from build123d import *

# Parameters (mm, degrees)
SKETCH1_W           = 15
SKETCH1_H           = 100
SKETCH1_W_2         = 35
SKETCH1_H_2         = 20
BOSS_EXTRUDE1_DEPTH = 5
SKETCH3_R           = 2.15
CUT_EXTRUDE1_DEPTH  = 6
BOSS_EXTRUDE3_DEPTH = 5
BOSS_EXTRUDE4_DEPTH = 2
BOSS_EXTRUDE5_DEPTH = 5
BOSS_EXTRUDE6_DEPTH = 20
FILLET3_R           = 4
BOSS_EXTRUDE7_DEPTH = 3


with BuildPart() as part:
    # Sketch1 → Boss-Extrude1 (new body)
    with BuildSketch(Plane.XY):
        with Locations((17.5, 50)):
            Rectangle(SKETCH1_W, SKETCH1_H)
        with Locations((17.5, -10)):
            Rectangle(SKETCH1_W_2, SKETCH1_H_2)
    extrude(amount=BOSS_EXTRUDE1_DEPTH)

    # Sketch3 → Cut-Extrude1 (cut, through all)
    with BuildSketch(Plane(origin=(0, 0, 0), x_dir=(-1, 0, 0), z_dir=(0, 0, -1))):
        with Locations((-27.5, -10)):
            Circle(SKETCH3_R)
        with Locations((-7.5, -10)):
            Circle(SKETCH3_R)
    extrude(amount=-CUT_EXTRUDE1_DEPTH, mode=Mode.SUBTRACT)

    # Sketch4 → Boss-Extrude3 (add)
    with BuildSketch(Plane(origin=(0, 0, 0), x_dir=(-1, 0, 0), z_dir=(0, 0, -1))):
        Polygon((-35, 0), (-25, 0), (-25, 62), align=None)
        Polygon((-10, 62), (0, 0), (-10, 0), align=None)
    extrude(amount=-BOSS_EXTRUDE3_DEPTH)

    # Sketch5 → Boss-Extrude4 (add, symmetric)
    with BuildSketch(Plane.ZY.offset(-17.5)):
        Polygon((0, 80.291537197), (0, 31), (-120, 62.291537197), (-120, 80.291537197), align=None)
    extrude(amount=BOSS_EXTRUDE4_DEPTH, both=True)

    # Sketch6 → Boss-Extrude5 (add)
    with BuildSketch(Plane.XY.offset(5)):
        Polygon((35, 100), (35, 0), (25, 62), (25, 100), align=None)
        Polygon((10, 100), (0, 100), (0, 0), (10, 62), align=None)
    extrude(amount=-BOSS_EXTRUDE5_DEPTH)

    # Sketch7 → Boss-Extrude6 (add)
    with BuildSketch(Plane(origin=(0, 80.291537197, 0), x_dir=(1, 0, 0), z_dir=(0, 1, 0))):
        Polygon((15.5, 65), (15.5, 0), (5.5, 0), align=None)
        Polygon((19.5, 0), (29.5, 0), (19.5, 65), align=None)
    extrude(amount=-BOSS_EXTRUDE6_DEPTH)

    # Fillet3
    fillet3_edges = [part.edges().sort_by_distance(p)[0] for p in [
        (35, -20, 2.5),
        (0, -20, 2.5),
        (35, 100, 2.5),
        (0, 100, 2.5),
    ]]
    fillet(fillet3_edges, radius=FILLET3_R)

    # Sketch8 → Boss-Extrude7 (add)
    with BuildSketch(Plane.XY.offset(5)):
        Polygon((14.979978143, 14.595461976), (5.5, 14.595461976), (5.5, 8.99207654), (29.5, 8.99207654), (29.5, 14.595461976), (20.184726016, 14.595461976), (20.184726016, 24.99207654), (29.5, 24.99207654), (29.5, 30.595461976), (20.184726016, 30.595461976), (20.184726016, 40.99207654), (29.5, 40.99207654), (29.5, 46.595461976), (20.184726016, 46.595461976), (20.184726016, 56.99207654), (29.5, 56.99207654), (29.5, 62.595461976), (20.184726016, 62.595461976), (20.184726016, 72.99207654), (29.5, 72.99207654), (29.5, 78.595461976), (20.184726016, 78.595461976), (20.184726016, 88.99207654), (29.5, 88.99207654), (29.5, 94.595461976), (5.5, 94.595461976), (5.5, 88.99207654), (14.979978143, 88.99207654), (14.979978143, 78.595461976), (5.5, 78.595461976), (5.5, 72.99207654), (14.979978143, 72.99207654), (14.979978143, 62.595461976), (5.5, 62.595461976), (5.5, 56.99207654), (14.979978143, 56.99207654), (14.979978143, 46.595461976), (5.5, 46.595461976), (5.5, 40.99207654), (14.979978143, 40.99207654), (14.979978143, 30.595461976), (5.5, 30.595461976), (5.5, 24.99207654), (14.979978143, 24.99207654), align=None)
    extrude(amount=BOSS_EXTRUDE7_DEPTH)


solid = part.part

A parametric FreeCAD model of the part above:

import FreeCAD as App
import Part
import Sketcher
Q = App.Units.Quantity


def edges_at(feature, points):
    """Names of the edges that pass closest to the given points."""
    edges = feature.Shape.Edges
    near = lambda p: min(range(len(edges)), key=lambda i: edges[i].distToShape(Part.Vertex(*p))[0])
    return sorted({f"Edge{near(p) + 1}" for p in points})

doc = App.newDocument("Part")
body = doc.addObject("PartDesign::Body", "Body")

sketch1 = body.newObject("Sketcher::SketchObject", "Sketch")
sketch1.AttachmentSupport = (doc.getObject("XY_Plane"), [""])
sketch1.MapMode = "FlatFace"
sketch1.addGeometry([
    Part.LineSegment(App.Vector(10, 100, 0), App.Vector(10, 0, 0)),
    Part.LineSegment(App.Vector(10, 0, 0), App.Vector(0, 0, 0)),
    Part.LineSegment(App.Vector(0, 0, 0), App.Vector(0, -20, 0)),
    Part.LineSegment(App.Vector(0, -20, 0), App.Vector(35, -20, 0)),
    Part.LineSegment(App.Vector(35, -20, 0), App.Vector(35, 0, 0)),
    Part.LineSegment(App.Vector(35, 0, 0), App.Vector(25, 0, 0)),
    Part.LineSegment(App.Vector(25, 0, 0), App.Vector(25, 100, 0)),
    Part.LineSegment(App.Vector(25, 100, 0), App.Vector(10, 100, 0)),
], False)
sketch1.addConstraint([
    Sketcher.Constraint("Coincident", 0, 2, 1, 1),
    Sketcher.Constraint("Coincident", 1, 2, 2, 1),
    Sketcher.Constraint("Coincident", 2, 2, 3, 1),
    Sketcher.Constraint("Coincident", 3, 2, 4, 1),
    Sketcher.Constraint("Coincident", 4, 2, 5, 1),
    Sketcher.Constraint("Coincident", 5, 2, 6, 1),
    Sketcher.Constraint("Coincident", 6, 2, 7, 1),
    Sketcher.Constraint("Coincident", 7, 2, 0, 1),
    Sketcher.Constraint("Vertical", 0),
    Sketcher.Constraint("Horizontal", 1),
    Sketcher.Constraint("Vertical", 2),
    Sketcher.Constraint("Horizontal", 3),
    Sketcher.Constraint("Vertical", 4),
    Sketcher.Constraint("Horizontal", 5),
    Sketcher.Constraint("Vertical", 6),
    Sketcher.Constraint("Horizontal", 7),
    Sketcher.Constraint("Coincident", 1, 2, -1, 1),
    Sketcher.Constraint("PointOnObject", 4, 2, -1),
    Sketcher.Constraint("Equal", 1, 5),
    Sketcher.Constraint("DistanceX", 1, 2, 1, 1, Q("10 mm")),
    Sketcher.Constraint("DistanceX", 3, 1, 3, 2, Q("35 mm")),
    Sketcher.Constraint("DistanceY", 0, 2, 0, 1, Q("100 mm")),
    Sketcher.Constraint("DistanceY", 2, 2, 2, 1, Q("20 mm")),
])
pad1 = body.newObject("PartDesign::Pad", "Pad")
pad1.Profile = sketch1
pad1.Length = 5

sketch2 = body.newObject("Sketcher::SketchObject", "Sketch001")
sketch2.AttachmentSupport = (doc.getObject("XY_Plane"), [""])
sketch2.MapMode = "FlatFace"
sketch2.addGeometry([
    Part.Circle(App.Vector(27.5, -10, 0), App.Vector(0, 0, 1), 2.1),
    Part.Circle(App.Vector(7.5, -10, 0), App.Vector(0, 0, 1), 2.1),
], False)
sketch2.addConstraint([
    Sketcher.Constraint("Equal", 0, 1),
    Sketcher.Constraint("Horizontal", 0, 3, 1, 3),
    Sketcher.Constraint("Diameter", 0, Q("4.3 mm")),
    Sketcher.Constraint("DistanceY", 0, 3, -1, 1, Q("10 mm")),
    Sketcher.Constraint("DistanceX", 1, 3, 0, 3, Q("20 mm")),
    Sketcher.Constraint("DistanceX", -1, 1, 0, 3, Q("27.5 mm")),
])
pocket1 = body.newObject("PartDesign::Pocket", "Pocket")
pocket1.Profile = sketch2
pocket1.Type = "ThroughAll"
pocket1.Reversed = True

sketch3 = body.newObject("Sketcher::SketchObject", "Sketch002")
sketch3.AttachmentSupport = (doc.getObject("XY_Plane"), [""])
sketch3.MapMode = "FlatFace"
sketch3.addGeometry([
    Part.LineSegment(App.Vector(35, 0, 0), App.Vector(25, 0, 0)),
    Part.LineSegment(App.Vector(25, 0, 0), App.Vector(25, 62, 0)),
    Part.LineSegment(App.Vector(25, 62, 0), App.Vector(35, 0, 0)),
    Part.LineSegment(App.Vector(0, 0, 0), App.Vector(10, 62, 0)),
    Part.LineSegment(App.Vector(10, 62, 0), App.Vector(10, 0, 0)),
    Part.LineSegment(App.Vector(10, 0, 0), App.Vector(0, 0, 0)),
], False)
sketch3.addConstraint([
    Sketcher.Constraint("Coincident", 0, 2, 1, 1),
    Sketcher.Constraint("Coincident", 1, 2, 2, 1),
    Sketcher.Constraint("Coincident", 2, 2, 0, 1),
    Sketcher.Constraint("Coincident", 3, 2, 4, 1),
    Sketcher.Constraint("Coincident", 4, 2, 5, 1),
    Sketcher.Constraint("Coincident", 5, 2, 3, 1),
    Sketcher.Constraint("Horizontal", 0),
    Sketcher.Constraint("Vertical", 1),
    Sketcher.Constraint("Vertical", 4),
    Sketcher.Constraint("Horizontal", 5),
    Sketcher.Constraint("Coincident", 5, 2, -1, 1),
    Sketcher.Constraint("PointOnObject", 0, 2, -1),
    Sketcher.Constraint("Horizontal", 1, 2, 3, 2),
    Sketcher.Constraint("Equal", 0, 5),
    Sketcher.Constraint("DistanceX", 0, 2, 0, 1, Q("10 mm")),
    Sketcher.Constraint("DistanceY", 1, 1, 1, 2, Q("62 mm")),
    Sketcher.Constraint("DistanceX", -1, 1, 0, 2, Q("25 mm")),
])
pad2 = body.newObject("PartDesign::Pad", "Pad001")
pad2.Profile = sketch3
pad2.Length = 5

sketch4 = body.newObject("Sketcher::SketchObject", "Sketch003")
sketch4.AttachmentSupport = (doc.getObject("YZ_Plane"), [""])
sketch4.MapMode = "FlatFace"
sketch4.AttachmentOffset = App.Placement(App.Vector(0, 0, 17.5), App.Rotation())
sketch4.addGeometry([
    Part.LineSegment(App.Vector(31, 0, 0), App.Vector(80, 0, 0)),
    Part.LineSegment(App.Vector(80, 0, 0), App.Vector(80, -120, 0)),
    Part.LineSegment(App.Vector(80, -120, 0), App.Vector(62, -120, 0)),
    Part.LineSegment(App.Vector(62, -120, 0), App.Vector(31, 0, 0)),
], False)
sketch4.addConstraint([
    Sketcher.Constraint("Coincident", 0, 2, 1, 1),
    Sketcher.Constraint("Coincident", 1, 2, 2, 1),
    Sketcher.Constraint("Coincident", 2, 2, 3, 1),
    Sketcher.Constraint("Coincident", 3, 2, 0, 1),
    Sketcher.Constraint("Horizontal", 0),
    Sketcher.Constraint("Vertical", 1),
    Sketcher.Constraint("Horizontal", 2),
    Sketcher.Constraint("PointOnObject", 0, 2, -1),
    Sketcher.Constraint("DistanceX", 2, 2, 2, 1, Q("18 mm")),
    Sketcher.Constraint("DistanceY", 1, 2, 1, 1, Q("120 mm")),
    Sketcher.Constraint("DistanceX", -1, 1, 3, 2, Q("31 mm")),
    Sketcher.Constraint("DistanceX", 0, 1, 0, 2, Q("49.291537 mm")),
])
pad3 = body.newObject("PartDesign::Pad", "Pad002")
pad3.Profile = sketch4
pad3.Length = 4
pad3.Midplane = True

sketch5 = body.newObject("Sketcher::SketchObject", "Sketch004")
sketch5.AttachmentSupport = (doc.getObject("XY_Plane"), [""])
sketch5.MapMode = "FlatFace"
sketch5.AttachmentOffset = App.Placement(App.Vector(0, 0, 5), App.Rotation())
sketch5.addGeometry([
    Part.LineSegment(App.Vector(35, 0, 0), App.Vector(35, 100, 0)),
    Part.LineSegment(App.Vector(35, 100, 0), App.Vector(25, 100, 0)),
    Part.LineSegment(App.Vector(25, 100, 0), App.Vector(25, 62, 0)),
    Part.LineSegment(App.Vector(25, 62, 0), App.Vector(35, 0, 0)),
    Part.LineSegment(App.Vector(10, 100, 0), App.Vector(0, 100, 0)),
    Part.LineSegment(App.Vector(0, 100, 0), App.Vector(0, 0, 0)),
    Part.LineSegment(App.Vector(0, 0, 0), App.Vector(10, 62, 0)),
    Part.LineSegment(App.Vector(10, 62, 0), App.Vector(10, 100, 0)),
], False)
sketch5.addConstraint([
    Sketcher.Constraint("Coincident", 0, 2, 1, 1),
    Sketcher.Constraint("Coincident", 1, 2, 2, 1),
    Sketcher.Constraint("Coincident", 2, 2, 3, 1),
    Sketcher.Constraint("Coincident", 3, 2, 0, 1),
    Sketcher.Constraint("Coincident", 4, 2, 5, 1),
    Sketcher.Constraint("Coincident", 5, 2, 6, 1),
    Sketcher.Constraint("Coincident", 6, 2, 7, 1),
    Sketcher.Constraint("Coincident", 7, 2, 4, 1),
    Sketcher.Constraint("Vertical", 0),
    Sketcher.Constraint("Horizontal", 1),
    Sketcher.Constraint("Vertical", 2),
    Sketcher.Constraint("Horizontal", 4),
    Sketcher.Constraint("Vertical", 5),
    Sketcher.Constraint("Vertical", 7),
    Sketcher.Constraint("Coincident", 5, 2, -1, 1),
    Sketcher.Constraint("PointOnObject", 3, 2, -1),
    Sketcher.Constraint("Horizontal", 1, 2, 4, 2),
    Sketcher.Constraint("Horizontal", 2, 2, 6, 2),
    Sketcher.Constraint("Equal", 1, 4),
    Sketcher.Constraint("DistanceX", 1, 2, 1, 1, Q("10 mm")),
    Sketcher.Constraint("DistanceY", 0, 1, 0, 2, Q("100 mm")),
    Sketcher.Constraint("DistanceY", 2, 2, 2, 1, Q("38 mm")),
    Sketcher.Constraint("DistanceX", -1, 1, 0, 2, Q("35 mm")),
])
pad4 = body.newObject("PartDesign::Pad", "Pad003")
pad4.Profile = sketch5
pad4.Length = 5
pad4.Reversed = True

sketch6 = body.newObject("Sketcher::SketchObject", "Sketch005")
sketch6.AttachmentSupport = (doc.getObject("XZ_Plane"), [""])
sketch6.MapMode = "FlatFace"
sketch6.AttachmentOffset = App.Placement(App.Vector(0, 0, -80.291537), App.Rotation())
sketch6.addGeometry([
    Part.LineSegment(App.Vector(16, 0, 0), App.Vector(16, -65, 0)),
    Part.LineSegment(App.Vector(16, -65, 0), App.Vector(6, 0, 0)),
    Part.LineSegment(App.Vector(6, 0, 0), App.Vector(16, 0, 0)),
    Part.LineSegment(App.Vector(20, 0, 0), App.Vector(30, 0, 0)),
    Part.LineSegment(App.Vector(30, 0, 0), App.Vector(20, -65, 0)),
    Part.LineSegment(App.Vector(20, -65, 0), App.Vector(20, 0, 0)),
], False)
sketch6.addConstraint([
    Sketcher.Constraint("Coincident", 0, 2, 1, 1),
    Sketcher.Constraint("Coincident", 1, 2, 2, 1),
    Sketcher.Constraint("Coincident", 2, 2, 0, 1),
    Sketcher.Constraint("Coincident", 3, 2, 4, 1),
    Sketcher.Constraint("Coincident", 4, 2, 5, 1),
    Sketcher.Constraint("Coincident", 5, 2, 3, 1),
    Sketcher.Constraint("Vertical", 0),
    Sketcher.Constraint("Horizontal", 2),
    Sketcher.Constraint("Horizontal", 3),
    Sketcher.Constraint("Vertical", 5),
    Sketcher.Constraint("PointOnObject", 1, 2, -1),
    Sketcher.Constraint("PointOnObject", 3, 2, -1),
    Sketcher.Constraint("Horizontal", 0, 2, 4, 2),
    Sketcher.Constraint("Equal", 2, 3),
    Sketcher.Constraint("DistanceX", 2, 1, 2, 2, Q("10 mm")),
    Sketcher.Constraint("DistanceY", 0, 2, 0, 1, Q("65 mm")),
    Sketcher.Constraint("DistanceX", 2, 2, 3, 2, Q("14 mm")),
    Sketcher.Constraint("DistanceX", -1, 1, 0, 2, Q("15.5 mm")),
])
pad5 = body.newObject("PartDesign::Pad", "Pad004")
pad5.Profile = sketch6
pad5.Length = 20
doc.recompute()

fillet = body.newObject("PartDesign::Fillet", "Fillet")
fillet.Base = (pad5, edges_at(pad5, [
    (35, -20, 2.5),
    (0, -20, 2.5),
    (35, 100, 2.5),
    (0, 100, 2.5),
]))
fillet.Radius = 4

sketch7 = body.newObject("Sketcher::SketchObject", "Sketch006")
sketch7.AttachmentSupport = (doc.getObject("XY_Plane"), [""])
sketch7.MapMode = "FlatFace"
sketch7.AttachmentOffset = App.Placement(App.Vector(0, 0, 5), App.Rotation())
sketch7.addGeometry([
    Part.LineSegment(App.Vector(15, 15, 0), App.Vector(6, 15, 0)),
    Part.LineSegment(App.Vector(6, 15, 0), App.Vector(6, 9, 0)),
    Part.LineSegment(App.Vector(6, 9, 0), App.Vector(30, 9, 0)),
    Part.LineSegment(App.Vector(30, 9, 0), App.Vector(30, 15, 0)),
    Part.LineSegment(App.Vector(30, 15, 0), App.Vector(20, 15, 0)),
    Part.LineSegment(App.Vector(20, 15, 0), App.Vector(20, 25, 0)),
    Part.LineSegment(App.Vector(20, 25, 0), App.Vector(30, 25, 0)),
    Part.LineSegment(App.Vector(30, 25, 0), App.Vector(30, 31, 0)),
    Part.LineSegment(App.Vector(30, 31, 0), App.Vector(20, 31, 0)),
    Part.LineSegment(App.Vector(20, 31, 0), App.Vector(20, 41, 0)),
    Part.LineSegment(App.Vector(20, 41, 0), App.Vector(30, 41, 0)),
    Part.LineSegment(App.Vector(30, 41, 0), App.Vector(30, 47, 0)),
    Part.LineSegment(App.Vector(30, 47, 0), App.Vector(20, 47, 0)),
    Part.LineSegment(App.Vector(20, 47, 0), App.Vector(20, 57, 0)),
    Part.LineSegment(App.Vector(20, 57, 0), App.Vector(30, 57, 0)),
    Part.LineSegment(App.Vector(30, 57, 0), App.Vector(30, 63, 0)),
    Part.LineSegment(App.Vector(30, 63, 0), App.Vector(20, 63, 0)),
    Part.LineSegment(App.Vector(20, 63, 0), App.Vector(20, 73, 0)),
    Part.LineSegment(App.Vector(20, 73, 0), App.Vector(30, 73, 0)),
    Part.LineSegment(App.Vector(30, 73, 0), App.Vector(30, 79, 0)),
    Part.LineSegment(App.Vector(30, 79, 0), App.Vector(20, 79, 0)),
    Part.LineSegment(App.Vector(20, 79, 0), App.Vector(20, 89, 0)),
    Part.LineSegment(App.Vector(20, 89, 0), App.Vector(30, 89, 0)),
    Part.LineSegment(App.Vector(30, 89, 0), App.Vector(30, 95, 0)),
    Part.LineSegment(App.Vector(30, 95, 0), App.Vector(6, 95, 0)),
    Part.LineSegment(App.Vector(6, 95, 0), App.Vector(6, 89, 0)),
    Part.LineSegment(App.Vector(6, 89, 0), App.Vector(15, 89, 0)),
    Part.LineSegment(App.Vector(15, 89, 0), App.Vector(15, 79, 0)),
    Part.LineSegment(App.Vector(15, 79, 0), App.Vector(6, 79, 0)),
    Part.LineSegment(App.Vector(6, 79, 0), App.Vector(6, 73, 0)),
    Part.LineSegment(App.Vector(6, 73, 0), App.Vector(15, 73, 0)),
    Part.LineSegment(App.Vector(15, 73, 0), App.Vector(15, 63, 0)),
    Part.LineSegment(App.Vector(15, 63, 0), App.Vector(6, 63, 0)),
    Part.LineSegment(App.Vector(6, 63, 0), App.Vector(6, 57, 0)),
    Part.LineSegment(App.Vector(6, 57, 0), App.Vector(15, 57, 0)),
    Part.LineSegment(App.Vector(15, 57, 0), App.Vector(15, 47, 0)),
    Part.LineSegment(App.Vector(15, 47, 0), App.Vector(6, 47, 0)),
    Part.LineSegment(App.Vector(6, 47, 0), App.Vector(6, 41, 0)),
    Part.LineSegment(App.Vector(6, 41, 0), App.Vector(15, 41, 0)),
    Part.LineSegment(App.Vector(15, 41, 0), App.Vector(15, 31, 0)),
    Part.LineSegment(App.Vector(15, 31, 0), App.Vector(6, 31, 0)),
    Part.LineSegment(App.Vector(6, 31, 0), App.Vector(6, 25, 0)),
    Part.LineSegment(App.Vector(6, 25, 0), App.Vector(15, 25, 0)),
    Part.LineSegment(App.Vector(15, 25, 0), App.Vector(15, 15, 0)),
], False)
sketch7.addConstraint([
    Sketcher.Constraint("Coincident", 0, 2, 1, 1),
    Sketcher.Constraint("Coincident", 1, 2, 2, 1),
    Sketcher.Constraint("Coincident", 2, 2, 3, 1),
    Sketcher.Constraint("Coincident", 3, 2, 4, 1),
    Sketcher.Constraint("Coincident", 4, 2, 5, 1),
    Sketcher.Constraint("Coincident", 5, 2, 6, 1),
    Sketcher.Constraint("Coincident", 6, 2, 7, 1),
    Sketcher.Constraint("Coincident", 7, 2, 8, 1),
    Sketcher.Constraint("Coincident", 8, 2, 9, 1),
    Sketcher.Constraint("Coincident", 9, 2, 10, 1),
    Sketcher.Constraint("Coincident", 10, 2, 11, 1),
    Sketcher.Constraint("Coincident", 11, 2, 12, 1),
    Sketcher.Constraint("Coincident", 12, 2, 13, 1),
    Sketcher.Constraint("Coincident", 13, 2, 14, 1),
    Sketcher.Constraint("Coincident", 14, 2, 15, 1),
    Sketcher.Constraint("Coincident", 15, 2, 16, 1),
    Sketcher.Constraint("Coincident", 16, 2, 17, 1),
    Sketcher.Constraint("Coincident", 17, 2, 18, 1),
    Sketcher.Constraint("Coincident", 18, 2, 19, 1),
    Sketcher.Constraint("Coincident", 19, 2, 20, 1),
    Sketcher.Constraint("Coincident", 20, 2, 21, 1),
    Sketcher.Constraint("Coincident", 21, 2, 22, 1),
    Sketcher.Constraint("Coincident", 22, 2, 23, 1),
    Sketcher.Constraint("Coincident", 23, 2, 24, 1),
    Sketcher.Constraint("Coincident", 24, 2, 25, 1),
    Sketcher.Constraint("Coincident", 25, 2, 26, 1),
    Sketcher.Constraint("Coincident", 26, 2, 27, 1),
    Sketcher.Constraint("Coincident", 27, 2, 28, 1),
    Sketcher.Constraint("Coincident", 28, 2, 29, 1),
    Sketcher.Constraint("Coincident", 29, 2, 30, 1),
    Sketcher.Constraint("Coincident", 30, 2, 31, 1),
    Sketcher.Constraint("Coincident", 31, 2, 32, 1),
    Sketcher.Constraint("Coincident", 32, 2, 33, 1),
    Sketcher.Constraint("Coincident", 33, 2, 34, 1),
    Sketcher.Constraint("Coincident", 34, 2, 35, 1),
    Sketcher.Constraint("Coincident", 35, 2, 36, 1),
    Sketcher.Constraint("Coincident", 36, 2, 37, 1),
    Sketcher.Constraint("Coincident", 37, 2, 38, 1),
    Sketcher.Constraint("Coincident", 38, 2, 39, 1),
    Sketcher.Constraint("Coincident", 39, 2, 40, 1),
    Sketcher.Constraint("Coincident", 40, 2, 41, 1),
    Sketcher.Constraint("Coincident", 41, 2, 42, 1),
    Sketcher.Constraint("Coincident", 42, 2, 43, 1),
    Sketcher.Constraint("Coincident", 43, 2, 0, 1),
    Sketcher.Constraint("Horizontal", 0),
    Sketcher.Constraint("Vertical", 1),
    Sketcher.Constraint("Horizontal", 2),
    Sketcher.Constraint("Vertical", 3),
    Sketcher.Constraint("Horizontal", 4),
    Sketcher.Constraint("Vertical", 5),
    Sketcher.Constraint("Horizontal", 6),
    Sketcher.Constraint("Vertical", 7),
    Sketcher.Constraint("Horizontal", 8),
    Sketcher.Constraint("Vertical", 9),
    Sketcher.Constraint("Horizontal", 10),
    Sketcher.Constraint("Vertical", 11),
    Sketcher.Constraint("Horizontal", 12),
    Sketcher.Constraint("Vertical", 13),
    Sketcher.Constraint("Horizontal", 14),
    Sketcher.Constraint("Vertical", 15),
    Sketcher.Constraint("Horizontal", 16),
    Sketcher.Constraint("Vertical", 17),
    Sketcher.Constraint("Horizontal", 18),
    Sketcher.Constraint("Vertical", 19),
    Sketcher.Constraint("Horizontal", 20),
    Sketcher.Constraint("Vertical", 21),
    Sketcher.Constraint("Horizontal", 22),
    Sketcher.Constraint("Vertical", 23),
    Sketcher.Constraint("Horizontal", 24),
    Sketcher.Constraint("Vertical", 25),
    Sketcher.Constraint("Horizontal", 26),
    Sketcher.Constraint("Vertical", 27),
    Sketcher.Constraint("Horizontal", 28),
    Sketcher.Constraint("Vertical", 29),
    Sketcher.Constraint("Horizontal", 30),
    Sketcher.Constraint("Vertical", 31),
    Sketcher.Constraint("Horizontal", 32),
    Sketcher.Constraint("Vertical", 33),
    Sketcher.Constraint("Horizontal", 34),
    Sketcher.Constraint("Vertical", 35),
    Sketcher.Constraint("Horizontal", 36),
    Sketcher.Constraint("Vertical", 37),
    Sketcher.Constraint("Horizontal", 38),
    Sketcher.Constraint("Vertical", 39),
    Sketcher.Constraint("Horizontal", 40),
    Sketcher.Constraint("Vertical", 41),
    Sketcher.Constraint("Horizontal", 42),
    Sketcher.Constraint("Vertical", 43),
    Sketcher.Constraint("Horizontal", 0, 2, 3, 2),
    Sketcher.Constraint("Horizontal", 22, 2, 25, 2),
    Sketcher.Constraint("Horizontal", 20, 2, 27, 2),
    Sketcher.Constraint("Horizontal", 18, 2, 29, 2),
    Sketcher.Constraint("Horizontal", 16, 2, 31, 2),
    Sketcher.Constraint("Horizontal", 14, 2, 33, 2),
    Sketcher.Constraint("Horizontal", 12, 2, 35, 2),
    Sketcher.Constraint("Horizontal", 10, 2, 37, 2),
    Sketcher.Constraint("Horizontal", 8, 2, 39, 2),
    Sketcher.Constraint("Horizontal", 6, 2, 41, 2),
    Sketcher.Constraint("Vertical", 3, 2, 6, 2),
    Sketcher.Constraint("Vertical", 5, 2, 8, 2),
    Sketcher.Constraint("Vertical", 7, 2, 10, 2),
    Sketcher.Constraint("Vertical", 9, 2, 12, 2),
    Sketcher.Constraint("Vertical", 11, 2, 14, 2),
    Sketcher.Constraint("Vertical", 13, 2, 16, 2),
    Sketcher.Constraint("Vertical", 15, 2, 18, 2),
    Sketcher.Constraint("Vertical", 17, 2, 20, 2),
    Sketcher.Constraint("Vertical", 19, 2, 22, 2),
    Sketcher.Constraint("Vertical", 1, 2, 24, 2),
    Sketcher.Constraint("Vertical", 25, 2, 28, 2),
    Sketcher.Constraint("Vertical", 27, 2, 30, 2),
    Sketcher.Constraint("Vertical", 29, 2, 32, 2),
    Sketcher.Constraint("Vertical", 31, 2, 34, 2),
    Sketcher.Constraint("Vertical", 33, 2, 36, 2),
    Sketcher.Constraint("Vertical", 35, 2, 38, 2),
    Sketcher.Constraint("Vertical", 37, 2, 40, 2),
    Sketcher.Constraint("Vertical", 39, 2, 42, 2),
    Sketcher.Constraint("Equal", 3, 7),
    Sketcher.Constraint("Equal", 5, 9),
    Sketcher.Constraint("Equal", 7, 11),
    Sketcher.Constraint("Equal", 9, 13),
    Sketcher.Constraint("Equal", 11, 15),
    Sketcher.Constraint("Equal", 13, 17),
    Sketcher.Constraint("Equal", 15, 19),
    Sketcher.Constraint("Equal", 17, 21),
    Sketcher.Constraint("Equal", 19, 23),
    Sketcher.Constraint("DistanceX", 2, 1, 2, 2, Q("24 mm")),
    Sketcher.Constraint("DistanceY", 2, 2, 5, 2, Q("16 mm")),
    Sketcher.Constraint("DistanceX", -1, 1, 0, 2, Q("5.5 mm")),
    Sketcher.Constraint("DistanceX", 0, 2, 0, 1, Q("9.479978 mm")),
    Sketcher.Constraint("DistanceX", 4, 2, 4, 1, Q("9.315274 mm")),
    Sketcher.Constraint("DistanceY", 1, 2, 1, 1, Q("5.603385 mm")),
    Sketcher.Constraint("DistanceY", -1, 1, 0, 2, Q("14.595462 mm")),
])
pad6 = body.newObject("PartDesign::Pad", "Pad005")
pad6.Profile = sketch7
pad6.Length = 3

doc.recompute()
